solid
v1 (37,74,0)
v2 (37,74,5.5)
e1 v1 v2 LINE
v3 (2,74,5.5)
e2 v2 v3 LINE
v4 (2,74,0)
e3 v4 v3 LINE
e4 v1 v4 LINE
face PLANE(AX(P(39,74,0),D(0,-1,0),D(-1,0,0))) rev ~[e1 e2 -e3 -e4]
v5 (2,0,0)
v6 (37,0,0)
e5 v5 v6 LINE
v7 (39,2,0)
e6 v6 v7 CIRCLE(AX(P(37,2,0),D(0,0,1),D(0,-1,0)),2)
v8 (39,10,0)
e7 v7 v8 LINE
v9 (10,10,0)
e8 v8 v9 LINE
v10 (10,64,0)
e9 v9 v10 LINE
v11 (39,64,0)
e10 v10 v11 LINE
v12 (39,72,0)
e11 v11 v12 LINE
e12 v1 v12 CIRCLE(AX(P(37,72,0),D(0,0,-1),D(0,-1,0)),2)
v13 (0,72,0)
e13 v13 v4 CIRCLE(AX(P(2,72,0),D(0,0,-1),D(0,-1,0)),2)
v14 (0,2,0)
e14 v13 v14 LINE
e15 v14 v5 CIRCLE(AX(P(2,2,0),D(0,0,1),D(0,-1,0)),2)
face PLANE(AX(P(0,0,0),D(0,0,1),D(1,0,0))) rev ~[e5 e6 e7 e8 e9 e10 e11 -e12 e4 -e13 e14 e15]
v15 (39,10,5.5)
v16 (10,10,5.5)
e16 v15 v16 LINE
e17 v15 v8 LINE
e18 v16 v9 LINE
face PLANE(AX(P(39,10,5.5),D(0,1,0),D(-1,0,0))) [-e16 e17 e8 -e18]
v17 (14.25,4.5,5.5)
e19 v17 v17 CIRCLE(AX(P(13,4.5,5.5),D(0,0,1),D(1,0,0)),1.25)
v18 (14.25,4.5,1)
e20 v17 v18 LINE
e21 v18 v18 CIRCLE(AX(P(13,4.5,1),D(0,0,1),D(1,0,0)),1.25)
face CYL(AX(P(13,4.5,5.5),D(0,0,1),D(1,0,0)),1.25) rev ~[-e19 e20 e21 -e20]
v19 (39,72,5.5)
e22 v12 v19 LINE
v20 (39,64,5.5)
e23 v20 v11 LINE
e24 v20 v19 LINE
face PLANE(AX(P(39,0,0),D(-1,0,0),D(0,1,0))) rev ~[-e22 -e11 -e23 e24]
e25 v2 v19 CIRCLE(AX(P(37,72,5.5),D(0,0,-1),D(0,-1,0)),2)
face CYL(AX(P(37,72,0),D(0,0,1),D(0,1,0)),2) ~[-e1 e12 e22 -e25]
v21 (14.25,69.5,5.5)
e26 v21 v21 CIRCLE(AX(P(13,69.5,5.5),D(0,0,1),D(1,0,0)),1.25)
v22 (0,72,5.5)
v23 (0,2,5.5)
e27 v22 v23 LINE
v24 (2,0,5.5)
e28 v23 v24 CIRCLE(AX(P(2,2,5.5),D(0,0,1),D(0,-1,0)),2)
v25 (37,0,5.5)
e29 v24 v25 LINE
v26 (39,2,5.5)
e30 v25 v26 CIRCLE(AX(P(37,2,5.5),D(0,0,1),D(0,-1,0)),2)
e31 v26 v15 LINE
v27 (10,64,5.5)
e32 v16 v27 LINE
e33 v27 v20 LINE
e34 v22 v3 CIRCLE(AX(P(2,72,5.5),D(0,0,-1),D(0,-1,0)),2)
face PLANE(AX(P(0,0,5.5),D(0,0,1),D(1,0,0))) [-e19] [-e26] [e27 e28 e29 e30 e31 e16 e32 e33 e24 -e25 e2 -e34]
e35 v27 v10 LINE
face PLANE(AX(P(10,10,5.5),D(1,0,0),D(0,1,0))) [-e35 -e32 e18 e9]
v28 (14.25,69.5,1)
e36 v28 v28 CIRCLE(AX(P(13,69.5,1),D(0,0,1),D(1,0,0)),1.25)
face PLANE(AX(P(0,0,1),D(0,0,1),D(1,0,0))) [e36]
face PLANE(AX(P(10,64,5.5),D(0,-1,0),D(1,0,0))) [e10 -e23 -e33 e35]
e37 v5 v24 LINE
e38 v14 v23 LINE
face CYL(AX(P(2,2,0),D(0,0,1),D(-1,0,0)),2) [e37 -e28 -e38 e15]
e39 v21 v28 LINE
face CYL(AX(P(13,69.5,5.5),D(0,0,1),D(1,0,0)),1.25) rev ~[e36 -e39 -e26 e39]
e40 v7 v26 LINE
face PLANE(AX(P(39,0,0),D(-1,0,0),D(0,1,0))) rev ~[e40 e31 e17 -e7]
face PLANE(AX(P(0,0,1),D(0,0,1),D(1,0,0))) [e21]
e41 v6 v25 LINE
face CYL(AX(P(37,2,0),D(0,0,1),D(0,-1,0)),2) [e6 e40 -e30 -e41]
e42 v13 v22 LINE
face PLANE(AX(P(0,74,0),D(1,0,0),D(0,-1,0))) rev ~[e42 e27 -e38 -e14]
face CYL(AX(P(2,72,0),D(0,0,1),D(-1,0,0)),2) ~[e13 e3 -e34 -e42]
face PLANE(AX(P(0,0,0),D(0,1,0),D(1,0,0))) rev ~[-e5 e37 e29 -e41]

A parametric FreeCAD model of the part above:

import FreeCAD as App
import Part
import Sketcher
from FreeCAD import Vector


def edges_at(feature, points):
    """Names of the edges that pass closest to the given points."""
    edges = feature.Shape.Edges
    near = lambda p: min(range(len(edges)), key=lambda i: edges[i].distToShape(Part.Vertex(*p))[0])
    return sorted({f"Edge{near(p) + 1}" for p in points})

doc = App.newDocument("Part")
params = doc.addObject("Spreadsheet::Sheet", "Params")
for row, (alias, value) in enumerate([
    ("sketch1_width", "39 mm"),
    ("sketch1_height", "74 mm"),
    ("pad1_length", "5.5 mm"),
    ("sketch2_width", "29 mm"),
    ("sketch2_height", "54 mm"),
    ("pocket1_length", "13.5 mm"),
    ("sketch3_diameter", "2.5 mm"),
    ("pocket2_length", "4.5 mm"),
    ("fillet_radius", "2 mm"),
], start=1):
    params.set(f"A{row}", alias)
    params.set(f"B{row}", "=" + value)
    params.setAlias(f"B{row}", alias)

body = doc.addObject("PartDesign::Body", "Body")

# Sketch on XY plane
sketch1 = body.newObject("Sketcher::SketchObject", "Sketch")
sketch1.AttachmentSupport = (doc.getObject("XY_Plane"), [""])
sketch1.MapMode = "FlatFace"
sketch1.addGeometry(Part.LineSegment(Vector(0, 74, 0), Vector(0, 0, 0)), False)
sketch1.addGeometry(Part.LineSegment(Vector(0, 0, 0), Vector(39, 0, 0)), False)
sketch1.addGeometry(Part.LineSegment(Vector(39, 0, 0), Vector(39, 74, 0)), False)
sketch1.addGeometry(Part.LineSegment(Vector(39, 74, 0), Vector(0, 74, 0)), False)
sketch1.addConstraint(Sketcher.Constraint("Coincident", 0, 2, 1, 1))
sketch1.addConstraint(Sketcher.Constraint("Coincident", 1, 2, 2, 1))
sketch1.addConstraint(Sketcher.Constraint("Coincident", 2, 2, 3, 1))
sketch1.addConstraint(Sketcher.Constraint("Coincident", 3, 2, 0, 1))
sketch1.addConstraint(Sketcher.Constraint("Vertical", 0))
sketch1.addConstraint(Sketcher.Constraint("Horizontal", 1))
sketch1.addConstraint(Sketcher.Constraint("Vertical", 2))
sketch1.addConstraint(Sketcher.Constraint("Horizontal", 3))
sketch1.addConstraint(Sketcher.Constraint("Coincident", 0, 2, -1, 1))
sketch1.addConstraint(Sketcher.Constraint("DistanceX", 1, 1, 1, 2, 39.0))
sketch1.addConstraint(Sketcher.Constraint("DistanceY", 0, 2, 0, 1, 74.0))
sketch1.setExpression("Constraints[9]", "Params.sketch1_width")
sketch1.setExpression("Constraints[10]", "Params.sketch1_height")
pad1 = body.newObject("PartDesign::Pad", "Pad")
pad1.Profile = sketch1
pad1.setExpression("Length", "Params.pad1_length")

# Sketch on XY plane
sketch2 = body.newObject("Sketcher::SketchObject", "Sketch001")
sketch2.AttachmentSupport = (doc.getObject("XY_Plane"), [""])
sketch2.MapMode = "FlatFace"
sketch2.AttachmentOffset = App.Placement(Vector(0, 0, 5.5), App.Rotation())
sketch2.addGeometry(Part.LineSegment(Vector(10, 10, 0), Vector(39, 10, 0)), False)
sketch2.addGeometry(Part.LineSegment(Vector(39, 10, 0), Vector(39, 64, 0)), False)
sketch2.addGeometry(Part.LineSegment(Vector(39, 64, 0), Vector(10, 64, 0)), False)
sketch2.addGeometry(Part.LineSegment(Vector(10, 64, 0), Vector(10, 10, 0)), False)
sketch2.addConstraint(Sketcher.Constraint("Coincident", 0, 2, 1, 1))
sketch2.addConstraint(Sketcher.Constraint("Coincident", 1, 2, 2, 1))
sketch2.addConstraint(Sketcher.Constraint("Coincident", 2, 2, 3, 1))
sketch2.addConstraint(Sketcher.Constraint("Coincident", 3, 2, 0, 1))
sketch2.addConstraint(Sketcher.Constraint("Horizontal", 0))
sketch2.addConstraint(Sketcher.Constraint("Vertical", 1))
sketch2.addConstraint(Sketcher.Constraint("Horizontal", 2))
sketch2.addConstraint(Sketcher.Constraint("Vertical", 3))
sketch2.addConstraint(Sketcher.Constraint("DistanceX", 0, 1, 0, 2, 29.0))
sketch2.addConstraint(Sketcher.Constraint("DistanceY", -1, 1, 0, 2, 10.0))
sketch2.addConstraint(Sketcher.Constraint("DistanceX", -1, 1, 2, 2, 10.0))
sketch2.addConstraint(Sketcher.Constraint("DistanceY", 1, 1, 1, 2, 54.0))
sketch2.setExpression("Constraints[8]", "Params.sketch2_width")
sketch2.setExpression("Constraints[11]", "Params.sketch2_height")
pocket1 = body.newObject("PartDesign::Pocket", "Pocket")
pocket1.Profile = sketch2
pocket1.setExpression("Length", "Params.pocket1_length")

# Sketch on XY plane
sketch3 = body.newObject("Sketcher::SketchObject", "Sketch002")
sketch3.AttachmentSupport = (doc.getObject("XY_Plane"), [""])
sketch3.MapMode = "FlatFace"
sketch3.AttachmentOffset = App.Placement(Vector(0, 0, 5.5), App.Rotation())
sketch3.addGeometry(Part.Circle(Vector(13, 4.5, 0), Vector(0, 0, 1), 1.2), False)
sketch3.addGeometry(Part.Circle(Vector(13, 69.5, 0), Vector(0, 0, 1), 1.2), False)
sketch3.addConstraint(Sketcher.Constraint("Equal", 0, 1))
sketch3.addConstraint(Sketcher.Constraint("Vertical", 0, 3, 1, 3))
sketch3.addConstraint(Sketcher.Constraint("Diameter", 0, 2.5))
sketch3.addConstraint(Sketcher.Constraint("DistanceY", 0, 3, 1, 3, 65.0))
sketch3.addConstraint(Sketcher.Constraint("DistanceY", -1, 1, 0, 3, 4.5))
sketch3.addConstraint(Sketcher.Constraint("DistanceX", -1, 1, 0, 3, 13.0))
sketch3.setExpression("Constraints[2]", "Params.sketch3_diameter")
pocket2 = body.newObject("PartDesign::Pocket", "Pocket001")
pocket2.Profile = sketch3
pocket2.setExpression("Length", "Params.pocket2_length")
doc.recompute()

fillet = body.newObject("PartDesign::Fillet", "Fillet")
fillet.Base = (pocket2, edges_at(pocket2, [
    (39, 0, 2.75),
    (39, 74, 2.75),
    (0, 0, 2.75),
    (0, 74, 2.75),
]))
fillet.setExpression("Radius", "Params.fillet_radius")

doc.recompute()
